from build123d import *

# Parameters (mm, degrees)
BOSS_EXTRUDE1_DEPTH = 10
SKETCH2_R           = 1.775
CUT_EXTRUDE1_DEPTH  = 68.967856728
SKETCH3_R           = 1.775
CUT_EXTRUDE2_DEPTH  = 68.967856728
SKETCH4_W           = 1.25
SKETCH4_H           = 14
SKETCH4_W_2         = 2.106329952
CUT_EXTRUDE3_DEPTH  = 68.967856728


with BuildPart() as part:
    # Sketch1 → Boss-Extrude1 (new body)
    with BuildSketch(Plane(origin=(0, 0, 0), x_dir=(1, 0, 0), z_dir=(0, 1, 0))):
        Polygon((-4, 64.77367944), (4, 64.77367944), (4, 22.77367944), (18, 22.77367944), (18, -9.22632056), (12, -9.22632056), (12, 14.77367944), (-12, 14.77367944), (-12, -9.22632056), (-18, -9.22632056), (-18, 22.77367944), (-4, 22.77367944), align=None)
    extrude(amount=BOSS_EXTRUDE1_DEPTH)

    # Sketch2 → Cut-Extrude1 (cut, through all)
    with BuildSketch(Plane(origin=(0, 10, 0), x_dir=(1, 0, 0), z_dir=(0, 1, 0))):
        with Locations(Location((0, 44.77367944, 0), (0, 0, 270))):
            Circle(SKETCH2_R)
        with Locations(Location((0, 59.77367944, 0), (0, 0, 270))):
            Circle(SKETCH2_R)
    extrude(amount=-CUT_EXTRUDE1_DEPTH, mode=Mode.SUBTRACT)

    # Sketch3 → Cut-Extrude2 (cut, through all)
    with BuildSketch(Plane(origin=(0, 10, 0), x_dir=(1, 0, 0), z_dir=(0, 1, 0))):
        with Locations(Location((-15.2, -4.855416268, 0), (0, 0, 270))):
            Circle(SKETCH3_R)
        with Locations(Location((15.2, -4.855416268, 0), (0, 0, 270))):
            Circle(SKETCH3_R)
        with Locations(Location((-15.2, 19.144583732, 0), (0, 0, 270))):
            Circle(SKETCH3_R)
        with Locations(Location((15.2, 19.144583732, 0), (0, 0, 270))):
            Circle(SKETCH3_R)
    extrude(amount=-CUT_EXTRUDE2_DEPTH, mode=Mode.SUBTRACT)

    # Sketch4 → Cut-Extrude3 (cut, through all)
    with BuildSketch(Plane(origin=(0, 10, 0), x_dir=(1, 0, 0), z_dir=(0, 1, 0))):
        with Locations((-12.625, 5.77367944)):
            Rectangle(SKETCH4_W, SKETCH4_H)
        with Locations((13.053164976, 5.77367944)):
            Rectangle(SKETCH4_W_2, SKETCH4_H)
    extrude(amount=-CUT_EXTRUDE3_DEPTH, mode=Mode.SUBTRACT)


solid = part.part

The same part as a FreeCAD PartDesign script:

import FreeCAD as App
import Part
import Sketcher
Q = App.Units.Quantity

doc = App.newDocument("Part")
params = doc.addObject("Spreadsheet::Sheet", "Params")
for row, (alias, value) in enumerate([
    ("sketch1_width", "8 mm"),
    ("sketch1_width2", "14 mm"),
    ("sketch1_width3", "6 mm"),
    ("sketch1_height", "42 mm"),
    ("sketch1_height2", "32 mm"),
    ("pad1_length", "10 mm"),
    ("sketch2_diameter", "3.55 mm"),
    ("sketch3_diameter", "3.55 mm"),
    ("sketch4_height", "14 mm"),
    ("sketch4_width", "1.25 mm"),
], start=1):
    params.set(f"A{row}", alias)
    params.set(f"B{row}", "=" + value)
    params.setAlias(f"B{row}", alias)

body = doc.addObject("PartDesign::Body", "Body")

sketch1 = body.newObject("Sketcher::SketchObject", "Sketch")
sketch1.AttachmentSupport = (doc.getObject("XZ_Plane"), [""])
sketch1.MapMode = "FlatFace"
sketch1.addGeometry([
    Part.LineSegment(App.Vector(4, -65, 0), App.Vector(-4, -65, 0)),
    Part.LineSegment(App.Vector(-4, -65, 0), App.Vector(-4, -23, 0)),
    Part.LineSegment(App.Vector(-4, -23, 0), App.Vector(-18, -23, 0)),
    Part.LineSegment(App.Vector(-18, -23, 0), App.Vector(-18, 9, 0)),
    Part.LineSegment(App.Vector(-18, 9, 0), App.Vector(-12, 9, 0)),
    Part.LineSegment(App.Vector(-12, 9, 0), App.Vector(-12, -15, 0)),
    Part.LineSegment(App.Vector(-12, -15, 0), App.Vector(12, -15, 0)),
    Part.LineSegment(App.Vector(12, -15, 0), App.Vector(12, 9, 0)),
    Part.LineSegment(App.Vector(12, 9, 0), App.Vector(18, 9, 0)),
    Part.LineSegment(App.Vector(18, 9, 0), App.Vector(18, -23, 0)),
    Part.LineSegment(App.Vector(18, -23, 0), App.Vector(4, -23, 0)),
    Part.LineSegment(App.Vector(4, -23, 0), App.Vector(4, -65, 0)),
], False)
sketch1.addConstraint([
    Sketcher.Constraint("Coincident", 0, 2, 1, 1),
    Sketcher.Constraint("Coincident", 1, 2, 2, 1),
    Sketcher.Constraint("Coincident", 2, 2, 3, 1),
    Sketcher.Constraint("Coincident", 3, 2, 4, 1),
    Sketcher.Constraint("Coincident", 4, 2, 5, 1),
    Sketcher.Constraint("Coincident", 5, 2, 6, 1),
    Sketcher.Constraint("Coincident", 6, 2, 7, 1),
    Sketcher.Constraint("Coincident", 7, 2, 8, 1),
    Sketcher.Constraint("Coincident", 8, 2, 9, 1),
    Sketcher.Constraint("Coincident", 9, 2, 10, 1),
    Sketcher.Constraint("Coincident", 10, 2, 11, 1),
    Sketcher.Constraint("Coincident", 11, 2, 0, 1),
    Sketcher.Constraint("Horizontal", 0),
    Sketcher.Constraint("Vertical", 1),
    Sketcher.Constraint("Horizontal", 2),
    Sketcher.Constraint("Vertical", 3),
    Sketcher.Constraint("Horizontal", 4),
    Sketcher.Constraint("Vertical", 5),
    Sketcher.Constraint("Horizontal", 6),
    Sketcher.Constraint("Vertical", 7),
    Sketcher.Constraint("Horizontal", 8),
    Sketcher.Constraint("Vertical", 9),
    Sketcher.Constraint("Horizontal", 10),
    Sketcher.Constraint("Vertical", 11),
    Sketcher.Constraint("Symmetric", 4, 2, 7, 2, -2),
    Sketcher.Constraint("Symmetric", 2, 2, 9, 2, -2),
    Sketcher.Constraint("Equal", 2, 10),
    Sketcher.Constraint("Equal", 6, 5),
    Sketcher.Constraint("DistanceX", 0, 2, 0, 1, Q("8 mm")),
    Sketcher.Constraint("DistanceX", 2, 2, 2, 1, Q("14 mm")),
    Sketcher.Constraint("DistanceX", 4, 1, 4, 2, Q("6 mm")),
    Sketcher.Constraint("DistanceY", 1, 1, 1, 2, Q("42 mm")),
    Sketcher.Constraint("DistanceY", 3, 1, 3, 2, Q("32 mm")),
    Sketcher.Constraint("DistanceY", 0, 2, -1, 1, Q("64.773679 mm")),
])
sketch1.setExpression("Constraints[28]", "Params.sketch1_width")
sketch1.setExpression("Constraints[29]", "Params.sketch1_width2")
sketch1.setExpression("Constraints[30]", "Params.sketch1_width3")
sketch1.setExpression("Constraints[31]", "Params.sketch1_height")
sketch1.setExpression("Constraints[32]", "Params.sketch1_height2")
pad1 = body.newObject("PartDesign::Pad", "Pad")
pad1.Profile = sketch1
pad1.setExpression("Length", "Params.pad1_length")
pad1.Reversed = True

sketch2 = body.newObject("Sketcher::SketchObject", "Sketch001")
sketch2.AttachmentSupport = (doc.getObject("XZ_Plane"), [""])
sketch2.MapMode = "FlatFace"
sketch2.AttachmentOffset = App.Placement(App.Vector(0, 0, -10), App.Rotation())
sketch2.addGeometry([
    Part.Circle(App.Vector(0, -44.8, 0), App.Vector(0, 0, 1), 1.8),
    Part.Circle(App.Vector(0, -59.8, 0), App.Vector(0, 0, 1), 1.8),
], False)
sketch2.addConstraint([
    Sketcher.Constraint("Equal", 0, 1),
    Sketcher.Constraint("PointOnObject", 0, 3, -2),
    Sketcher.Constraint("PointOnObject", 1, 3, -2),
    Sketcher.Constraint("Diameter", 0, Q("3.55 mm")),
    Sketcher.Constraint("DistanceY", 1, 3, 0, 3, Q("15 mm")),
    Sketcher.Constraint("DistanceY", 0, 3, -1, 1, Q("44.773679 mm")),
])
sketch2.setExpression("Constraints[3]", "Params.sketch2_diameter")
pocket1 = body.newObject("PartDesign::Pocket", "Pocket")
pocket1.Profile = sketch2
pocket1.Type = "ThroughAll"
pocket1.Reversed = True

sketch3 = body.newObject("Sketcher::SketchObject", "Sketch002")
sketch3.AttachmentSupport = (doc.getObject("XZ_Plane"), [""])
sketch3.MapMode = "FlatFace"
sketch3.AttachmentOffset = App.Placement(App.Vector(0, 0, -10), App.Rotation())
sketch3.addGeometry([
    Part.Circle(App.Vector(-15.2, 4.9, 0), App.Vector(0, 0, 1), 1.8),
    Part.Circle(App.Vector(15.2, 4.9, 0), App.Vector(0, 0, 1), 1.8),
    Part.Circle(App.Vector(-15.2, -19.1, 0), App.Vector(0, 0, 1), 1.8),
    Part.Circle(App.Vector(15.2, -19.1, 0), App.Vector(0, 0, 1), 1.8),
], False)
sketch3.addConstraint([
    Sketcher.Constraint("Equal", 0, 1),
    Sketcher.Constraint("Equal", 1, 2),
    Sketcher.Constraint("Equal", 2, 3),
    Sketcher.Constraint("Symmetric", 0, 3, 1, 3, -2),
    Sketcher.Constraint("Symmetric", 2, 3, 3, 3, -2),
    Sketcher.Constraint("Vertical", 0, 3, 2, 3),
    Sketcher.Constraint("Diameter", 0, Q("3.55 mm")),
    Sketcher.Constraint("DistanceY", 2, 3, 0, 3, Q("24 mm")),
    Sketcher.Constraint("DistanceX", 0, 3, -1, 1, Q("15.2 mm")),
    Sketcher.Constraint("DistanceY", -1, 1, 0, 3, Q("4.855416 mm")),
])
sketch3.setExpression("Constraints[6]", "Params.sketch3_diameter")
pocket2 = body.newObject("PartDesign::Pocket", "Pocket001")
pocket2.Profile = sketch3
pocket2.Type = "ThroughAll"
pocket2.Reversed = True

sketch4 = body.newObject("Sketcher::SketchObject", "Sketch003")
sketch4.AttachmentSupport = (doc.getObject("XZ_Plane"), [""])
sketch4.MapMode = "FlatFace"
sketch4.AttachmentOffset = App.Placement(App.Vector(0, 0, -10), App.Rotation())
sketch4.addGeometry([
    Part.LineSegment(App.Vector(-13.2, -12.8, 0), App.Vector(-13.2, 1.2, 0)),
    Part.LineSegment(App.Vector(-13.2, 1.2, 0), App.Vector(-12, 1.2, 0)),
    Part.LineSegment(App.Vector(-12, 1.2, 0), App.Vector(-12, -12.8, 0)),
    Part.LineSegment(App.Vector(-12, -12.8, 0), App.Vector(-13.2, -12.8, 0)),
    Part.LineSegment(App.Vector(12, -12.8, 0), App.Vector(12, 1.2, 0)),
    Part.LineSegment(App.Vector(12, 1.2, 0), App.Vector(14.1, 1.2, 0)),
    Part.LineSegment(App.Vector(14.1, 1.2, 0), App.Vector(14.1, -12.8, 0)),
    Part.LineSegment(App.Vector(14.1, -12.8, 0), App.Vector(12, -12.8, 0)),
], False)
sketch4.addConstraint([
    Sketcher.Constraint("Coincident", 0, 2, 1, 1),
    Sketcher.Constraint("Coincident", 1, 2, 2, 1),
    Sketcher.Constraint("Coincident", 2, 2, 3, 1),
    Sketcher.Constraint("Coincident", 3, 2, 0, 1),
    Sketcher.Constraint("Coincident", 4, 2, 5, 1),
    Sketcher.Constraint("Coincident", 5, 2, 6, 1),
    Sketcher.Constraint("Coincident", 6, 2, 7, 1),
    Sketcher.Constraint("Coincident", 7, 2, 4, 1),
    Sketcher.Constraint("Vertical", 0),
    Sketcher.Constraint("Horizontal", 1),
    Sketcher.Constraint("Vertical", 2),
    Sketcher.Constraint("Horizontal", 3),
    Sketcher.Constraint("Vertical", 4),
    Sketcher.Constraint("Horizontal", 5),
    Sketcher.Constraint("Vertical", 6),
    Sketcher.Constraint("Horizontal", 7),
    Sketcher.Constraint("Symmetric", 1, 2, 4, 2, -2),
    Sketcher.Constraint("Horizontal", 3, 2, 6, 2),
    Sketcher.Constraint("DistanceY", 0, 1, 0, 2, Q("14 mm")),
    Sketcher.Constraint("DistanceX", 1, 2, -1, 1, Q("12 mm")),
    Sketcher.Constraint("DistanceX", 1, 1, 1, 2, Q("1.25 mm")),
    Sketcher.Constraint("DistanceX", 5, 1, 5, 2, Q("2.10633 mm")),
    Sketcher.Constraint("DistanceY", -1, 1, 0, 2, Q("1.226321 mm")),
])
sketch4.setExpression("Constraints[18]", "Params.sketch4_height")
sketch4.setExpression("Constraints[20]", "Params.sketch4_width")
pocket3 = body.newObject("PartDesign::Pocket", "Pocket002")
pocket3.Profile = sketch4
pocket3.Type = "ThroughAll"
pocket3.Reversed = True

doc.recompute()
